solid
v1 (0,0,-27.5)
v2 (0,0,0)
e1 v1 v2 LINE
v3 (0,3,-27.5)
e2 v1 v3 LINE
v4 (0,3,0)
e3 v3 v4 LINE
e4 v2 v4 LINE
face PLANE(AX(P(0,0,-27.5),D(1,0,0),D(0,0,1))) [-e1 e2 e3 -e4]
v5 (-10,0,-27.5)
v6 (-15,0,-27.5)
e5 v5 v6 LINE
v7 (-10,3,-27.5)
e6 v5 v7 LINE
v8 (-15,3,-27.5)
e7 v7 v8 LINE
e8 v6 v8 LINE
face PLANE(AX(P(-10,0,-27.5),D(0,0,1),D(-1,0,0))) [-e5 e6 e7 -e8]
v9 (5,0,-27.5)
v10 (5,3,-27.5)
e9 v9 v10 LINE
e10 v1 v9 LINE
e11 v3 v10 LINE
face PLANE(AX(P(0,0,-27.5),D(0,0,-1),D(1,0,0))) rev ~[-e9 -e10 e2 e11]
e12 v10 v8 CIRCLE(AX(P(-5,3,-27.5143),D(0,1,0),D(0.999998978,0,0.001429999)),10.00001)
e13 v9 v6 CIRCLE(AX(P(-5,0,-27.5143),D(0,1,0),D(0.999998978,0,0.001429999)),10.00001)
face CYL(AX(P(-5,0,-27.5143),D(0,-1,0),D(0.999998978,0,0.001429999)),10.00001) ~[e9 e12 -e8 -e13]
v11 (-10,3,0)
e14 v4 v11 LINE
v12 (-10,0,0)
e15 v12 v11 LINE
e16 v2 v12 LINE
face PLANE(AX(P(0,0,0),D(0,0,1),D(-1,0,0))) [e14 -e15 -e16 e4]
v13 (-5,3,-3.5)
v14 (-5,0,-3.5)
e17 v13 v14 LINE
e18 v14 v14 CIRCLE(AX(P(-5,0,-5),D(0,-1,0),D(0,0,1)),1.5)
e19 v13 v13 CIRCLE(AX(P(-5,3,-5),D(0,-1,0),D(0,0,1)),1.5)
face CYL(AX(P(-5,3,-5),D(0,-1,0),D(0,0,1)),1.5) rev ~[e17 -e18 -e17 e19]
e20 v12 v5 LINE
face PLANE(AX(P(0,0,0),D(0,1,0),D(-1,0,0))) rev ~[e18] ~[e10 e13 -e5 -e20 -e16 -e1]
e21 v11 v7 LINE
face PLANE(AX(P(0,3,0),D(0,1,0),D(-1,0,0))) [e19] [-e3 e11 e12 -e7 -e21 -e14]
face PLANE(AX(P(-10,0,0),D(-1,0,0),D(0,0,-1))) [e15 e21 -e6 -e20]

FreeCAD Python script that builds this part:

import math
import FreeCAD as App
import Part
import Sketcher

doc = App.newDocument("Part")
body = doc.addObject("PartDesign::Body", "Body")

# Sketch on XZ plane
sketch1 = body.newObject("Sketcher::SketchObject", "Sketch")
sketch1.AttachmentSupport = (doc.getObject("XZ_Plane"), [""])
sketch1.MapMode = "FlatFace"
sketch1.addGeometry(Part.LineSegment(App.Vector(-10, 0, 0), App.Vector(0, 0, 0)), False)
sketch1.addGeometry(Part.LineSegment(App.Vector(0, 0, 0), App.Vector(0, -27.5, 0)), False)
sketch1.addGeometry(Part.LineSegment(App.Vector(0, -27.5, 0), App.Vector(5, -27.5, 0)), False)
sketch1.addGeometry(Part.ArcOfCircle(Part.Circle(App.Vector(-5, -27.5143, 0), App.Vector(0, 0, 1), 10.00001), math.radians(179.918067), math.radians(360.081933)), False)
sketch1.addGeometry(Part.LineSegment(App.Vector(-15, -27.5, 0), App.Vector(-10, -27.5, 0)), False)
sketch1.addGeometry(Part.LineSegment(App.Vector(-10, -27.5, 0), App.Vector(-10, 0, 0)), False)
sketch1.addConstraint(Sketcher.Constraint("Coincident", 0, 2, 1, 1))
sketch1.addConstraint(Sketcher.Constraint("Coincident", 1, 2, 2, 1))
sketch1.addConstraint(Sketcher.Constraint("Coincident", 2, 2, 3, 2))
sketch1.addConstraint(Sketcher.Constraint("Coincident", 3, 1, 4, 1))
sketch1.addConstraint(Sketcher.Constraint("Coincident", 4, 2, 5, 1))
sketch1.addConstraint(Sketcher.Constraint("Coincident", 5, 2, 0, 1))
sketch1.addConstraint(Sketcher.Constraint("Horizontal", 0))
sketch1.addConstraint(Sketcher.Constraint("Vertical", 1))
sketch1.addConstraint(Sketcher.Constraint("Horizontal", 2))
sketch1.addConstraint(Sketcher.Constraint("Horizontal", 4))
sketch1.addConstraint(Sketcher.Constraint("Vertical", 5))
sketch1.addConstraint(Sketcher.Constraint("Coincident", 0, 2, -1, 1))
sketch1.addConstraint(Sketcher.Constraint("Horizontal", 2, 2, 3, 1))
sketch1.addConstraint(Sketcher.Constraint("Equal", 2, 4))
sketch1.addConstraint(Sketcher.Constraint("Radius", 3, 10.0))
sketch1.addConstraint(Sketcher.Constraint("DistanceX", 0, 1, 0, 2, 10.0))
sketch1.addConstraint(Sketcher.Constraint("DistanceY", 1, 2, 1, 1, 27.5))
sketch1.addConstraint(Sketcher.Constraint("DistanceY", 3, 3, -1, 1, 27.5143))
pad1 = body.newObject("PartDesign::Pad", "Pad")
pad1.Profile = sketch1
pad1.Length = 3
pad1.Reversed = True

# Sketch on XZ plane
sketch2 = body.newObject("Sketcher::SketchObject", "Sketch001")
sketch2.AttachmentSupport = (doc.getObject("XZ_Plane"), [""])
sketch2.MapMode = "FlatFace"
sketch2.AttachmentOffset = App.Placement(App.Vector(0, 0, -3), App.Rotation())
sketch2.addGeometry(Part.Circle(App.Vector(-5, -5, 0), App.Vector(0, 0, 1), 1.5), False)
sketch2.addConstraint(Sketcher.Constraint("Diameter", 0, 3.0))
sketch2.addConstraint(Sketcher.Constraint("DistanceX", 0, 3, -1, 1, 5.0))
sketch2.addConstraint(Sketcher.Constraint("DistanceY", 0, 3, -1, 1, 5.0))
doc.recompute()
hole = body.newObject("PartDesign::Hole", "Hole")
hole.Profile = sketch2
hole.ThreadType = "None"
hole.Diameter = 3
hole.DepthType = "ThroughAll"
hole.Reversed = True

doc.recompute()
